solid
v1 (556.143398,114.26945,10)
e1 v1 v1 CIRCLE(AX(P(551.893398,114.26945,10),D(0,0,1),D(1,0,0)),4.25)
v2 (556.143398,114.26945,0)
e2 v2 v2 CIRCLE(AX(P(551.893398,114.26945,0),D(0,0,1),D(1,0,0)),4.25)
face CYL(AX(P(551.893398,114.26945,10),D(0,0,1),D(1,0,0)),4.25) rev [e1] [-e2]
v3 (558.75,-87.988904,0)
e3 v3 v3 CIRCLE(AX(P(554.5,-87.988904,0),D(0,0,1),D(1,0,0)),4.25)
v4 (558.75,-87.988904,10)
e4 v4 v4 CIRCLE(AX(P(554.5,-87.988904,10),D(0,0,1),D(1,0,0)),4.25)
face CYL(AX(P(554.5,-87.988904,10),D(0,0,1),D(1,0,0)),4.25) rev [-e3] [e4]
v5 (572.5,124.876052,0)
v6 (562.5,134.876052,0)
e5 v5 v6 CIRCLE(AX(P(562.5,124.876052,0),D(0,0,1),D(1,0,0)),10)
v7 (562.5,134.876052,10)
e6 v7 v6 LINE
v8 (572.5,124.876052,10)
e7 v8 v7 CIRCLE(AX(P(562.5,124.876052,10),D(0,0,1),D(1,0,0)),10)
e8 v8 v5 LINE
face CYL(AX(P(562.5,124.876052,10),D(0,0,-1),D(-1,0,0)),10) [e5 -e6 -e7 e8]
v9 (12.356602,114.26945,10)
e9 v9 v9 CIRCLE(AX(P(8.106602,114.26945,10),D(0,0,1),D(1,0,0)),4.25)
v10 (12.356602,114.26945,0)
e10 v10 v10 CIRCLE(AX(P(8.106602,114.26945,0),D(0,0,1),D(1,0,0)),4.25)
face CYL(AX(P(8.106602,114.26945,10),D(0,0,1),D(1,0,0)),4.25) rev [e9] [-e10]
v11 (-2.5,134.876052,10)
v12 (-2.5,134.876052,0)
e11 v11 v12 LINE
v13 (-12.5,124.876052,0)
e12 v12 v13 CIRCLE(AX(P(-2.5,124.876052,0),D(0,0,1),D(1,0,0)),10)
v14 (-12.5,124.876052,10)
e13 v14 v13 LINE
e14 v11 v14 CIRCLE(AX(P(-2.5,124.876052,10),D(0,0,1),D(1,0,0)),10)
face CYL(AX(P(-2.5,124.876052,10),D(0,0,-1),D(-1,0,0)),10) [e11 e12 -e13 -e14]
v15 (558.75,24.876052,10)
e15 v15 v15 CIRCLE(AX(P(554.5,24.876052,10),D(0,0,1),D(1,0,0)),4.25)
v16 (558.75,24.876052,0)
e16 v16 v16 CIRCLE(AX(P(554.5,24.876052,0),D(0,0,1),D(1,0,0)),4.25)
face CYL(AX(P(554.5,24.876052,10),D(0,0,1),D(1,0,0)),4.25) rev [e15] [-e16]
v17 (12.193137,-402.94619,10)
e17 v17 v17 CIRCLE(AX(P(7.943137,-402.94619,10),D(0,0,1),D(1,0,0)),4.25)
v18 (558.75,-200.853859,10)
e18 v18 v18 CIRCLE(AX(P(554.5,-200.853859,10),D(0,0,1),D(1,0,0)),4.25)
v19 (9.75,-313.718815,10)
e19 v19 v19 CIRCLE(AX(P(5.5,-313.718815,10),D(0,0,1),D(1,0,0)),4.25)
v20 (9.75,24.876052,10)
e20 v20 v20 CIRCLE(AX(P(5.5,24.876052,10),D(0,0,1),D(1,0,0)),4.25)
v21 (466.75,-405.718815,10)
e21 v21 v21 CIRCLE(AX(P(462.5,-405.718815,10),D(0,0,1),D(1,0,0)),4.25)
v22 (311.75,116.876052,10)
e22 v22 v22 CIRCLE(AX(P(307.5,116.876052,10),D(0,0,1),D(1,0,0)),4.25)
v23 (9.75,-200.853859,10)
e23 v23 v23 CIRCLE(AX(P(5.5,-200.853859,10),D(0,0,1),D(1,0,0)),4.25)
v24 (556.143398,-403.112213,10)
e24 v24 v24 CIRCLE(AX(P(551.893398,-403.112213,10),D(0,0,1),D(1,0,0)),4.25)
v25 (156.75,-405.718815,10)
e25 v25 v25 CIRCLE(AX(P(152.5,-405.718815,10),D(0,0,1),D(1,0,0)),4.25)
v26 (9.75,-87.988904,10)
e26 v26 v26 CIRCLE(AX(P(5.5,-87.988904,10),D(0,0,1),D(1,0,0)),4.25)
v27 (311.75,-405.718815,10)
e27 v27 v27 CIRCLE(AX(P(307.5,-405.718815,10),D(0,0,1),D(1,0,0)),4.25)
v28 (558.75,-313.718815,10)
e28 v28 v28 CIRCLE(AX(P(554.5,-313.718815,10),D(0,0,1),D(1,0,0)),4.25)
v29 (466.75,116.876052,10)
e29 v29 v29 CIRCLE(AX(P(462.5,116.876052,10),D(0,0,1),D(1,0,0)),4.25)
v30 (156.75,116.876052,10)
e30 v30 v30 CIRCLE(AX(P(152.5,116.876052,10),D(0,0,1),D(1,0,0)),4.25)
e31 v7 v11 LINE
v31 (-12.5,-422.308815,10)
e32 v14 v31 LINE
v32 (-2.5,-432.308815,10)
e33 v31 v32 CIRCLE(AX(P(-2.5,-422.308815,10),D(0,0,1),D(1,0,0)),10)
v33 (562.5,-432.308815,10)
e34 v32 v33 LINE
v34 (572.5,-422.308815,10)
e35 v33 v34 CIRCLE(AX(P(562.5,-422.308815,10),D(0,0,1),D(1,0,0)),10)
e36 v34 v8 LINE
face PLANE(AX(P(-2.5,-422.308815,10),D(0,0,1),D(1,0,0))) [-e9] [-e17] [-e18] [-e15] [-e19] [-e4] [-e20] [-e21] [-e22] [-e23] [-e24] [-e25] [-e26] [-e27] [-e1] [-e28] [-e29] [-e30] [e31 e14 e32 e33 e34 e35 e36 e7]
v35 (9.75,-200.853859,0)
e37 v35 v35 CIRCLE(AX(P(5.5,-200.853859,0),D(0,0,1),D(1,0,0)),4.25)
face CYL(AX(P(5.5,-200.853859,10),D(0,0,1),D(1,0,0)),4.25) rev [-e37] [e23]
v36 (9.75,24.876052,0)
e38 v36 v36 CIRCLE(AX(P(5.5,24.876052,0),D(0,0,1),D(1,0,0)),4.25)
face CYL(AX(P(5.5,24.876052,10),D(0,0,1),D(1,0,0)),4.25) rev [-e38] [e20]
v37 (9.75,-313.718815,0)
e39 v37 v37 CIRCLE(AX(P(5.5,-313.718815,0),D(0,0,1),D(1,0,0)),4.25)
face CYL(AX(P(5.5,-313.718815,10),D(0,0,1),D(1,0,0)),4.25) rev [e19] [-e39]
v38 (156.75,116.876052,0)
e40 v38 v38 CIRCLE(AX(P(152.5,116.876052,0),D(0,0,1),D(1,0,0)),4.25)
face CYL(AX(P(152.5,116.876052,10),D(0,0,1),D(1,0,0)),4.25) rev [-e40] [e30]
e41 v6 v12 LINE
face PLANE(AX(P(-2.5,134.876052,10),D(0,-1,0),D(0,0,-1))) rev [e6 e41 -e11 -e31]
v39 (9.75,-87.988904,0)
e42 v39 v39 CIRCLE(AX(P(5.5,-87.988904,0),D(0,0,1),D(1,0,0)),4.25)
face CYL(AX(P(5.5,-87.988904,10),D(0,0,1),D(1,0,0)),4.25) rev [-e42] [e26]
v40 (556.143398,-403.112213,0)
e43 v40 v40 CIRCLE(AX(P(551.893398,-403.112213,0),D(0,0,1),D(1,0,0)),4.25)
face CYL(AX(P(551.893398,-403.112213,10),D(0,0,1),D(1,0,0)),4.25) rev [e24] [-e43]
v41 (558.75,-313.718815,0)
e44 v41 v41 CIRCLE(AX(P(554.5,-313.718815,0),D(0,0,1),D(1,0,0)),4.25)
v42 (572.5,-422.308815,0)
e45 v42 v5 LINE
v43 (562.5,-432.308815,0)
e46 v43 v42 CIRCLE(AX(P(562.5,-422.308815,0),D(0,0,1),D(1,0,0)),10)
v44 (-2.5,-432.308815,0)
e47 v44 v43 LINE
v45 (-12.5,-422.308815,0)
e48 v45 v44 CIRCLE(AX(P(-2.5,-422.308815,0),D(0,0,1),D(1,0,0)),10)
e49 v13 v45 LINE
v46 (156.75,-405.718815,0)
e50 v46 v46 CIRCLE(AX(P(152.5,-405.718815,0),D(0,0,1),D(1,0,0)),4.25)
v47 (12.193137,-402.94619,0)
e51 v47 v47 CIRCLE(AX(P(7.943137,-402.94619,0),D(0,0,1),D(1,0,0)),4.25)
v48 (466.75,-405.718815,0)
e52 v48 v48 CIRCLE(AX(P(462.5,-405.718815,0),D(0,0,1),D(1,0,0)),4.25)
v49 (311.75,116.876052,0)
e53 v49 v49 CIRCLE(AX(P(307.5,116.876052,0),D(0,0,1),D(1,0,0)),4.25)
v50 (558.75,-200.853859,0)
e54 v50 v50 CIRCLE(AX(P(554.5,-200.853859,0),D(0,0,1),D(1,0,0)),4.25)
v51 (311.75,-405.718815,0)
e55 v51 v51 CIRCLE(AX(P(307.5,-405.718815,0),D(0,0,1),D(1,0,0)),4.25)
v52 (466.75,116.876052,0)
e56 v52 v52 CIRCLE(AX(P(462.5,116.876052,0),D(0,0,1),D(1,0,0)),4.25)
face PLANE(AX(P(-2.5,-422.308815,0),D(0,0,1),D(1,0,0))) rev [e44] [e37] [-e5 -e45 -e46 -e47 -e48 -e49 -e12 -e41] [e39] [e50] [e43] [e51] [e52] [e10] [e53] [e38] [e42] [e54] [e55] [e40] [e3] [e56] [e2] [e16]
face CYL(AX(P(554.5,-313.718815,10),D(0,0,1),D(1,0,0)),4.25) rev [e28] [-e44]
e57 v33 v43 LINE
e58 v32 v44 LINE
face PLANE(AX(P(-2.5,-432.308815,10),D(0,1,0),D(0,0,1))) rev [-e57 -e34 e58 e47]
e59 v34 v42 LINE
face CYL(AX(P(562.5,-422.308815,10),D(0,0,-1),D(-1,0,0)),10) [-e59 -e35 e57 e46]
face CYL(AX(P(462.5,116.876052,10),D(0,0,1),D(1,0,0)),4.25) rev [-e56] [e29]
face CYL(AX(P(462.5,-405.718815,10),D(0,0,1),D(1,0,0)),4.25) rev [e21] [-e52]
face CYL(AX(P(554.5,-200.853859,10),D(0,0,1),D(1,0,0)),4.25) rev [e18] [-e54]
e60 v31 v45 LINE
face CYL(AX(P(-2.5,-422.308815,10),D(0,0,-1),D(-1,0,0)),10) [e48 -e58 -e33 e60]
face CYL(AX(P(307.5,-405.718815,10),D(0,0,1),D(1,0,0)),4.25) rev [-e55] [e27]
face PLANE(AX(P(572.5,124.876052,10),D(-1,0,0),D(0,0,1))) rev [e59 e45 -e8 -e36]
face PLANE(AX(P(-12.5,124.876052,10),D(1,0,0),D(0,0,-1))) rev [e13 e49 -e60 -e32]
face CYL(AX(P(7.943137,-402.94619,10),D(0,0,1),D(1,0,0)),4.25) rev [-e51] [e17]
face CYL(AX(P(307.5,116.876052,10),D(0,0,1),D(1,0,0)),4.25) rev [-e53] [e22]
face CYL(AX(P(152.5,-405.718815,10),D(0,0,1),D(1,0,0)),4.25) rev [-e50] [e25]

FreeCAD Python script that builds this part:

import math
import FreeCAD as App
import Part
import Sketcher

V = App.Vector
Q = App.Units.Quantity

doc = App.newDocument("Part")
body = doc.addObject("PartDesign::Body", "Body")

# Sketch on XY plane
sketch1 = body.newObject("Sketcher::SketchObject", "Sketch")
sketch1.AttachmentSupport = (doc.getObject("XY_Plane"), [""])
sketch1.MapMode = "FlatFace"
sketch1.addGeometry([
    Part.LineSegment(V(-2, -432, 0), V(562, -432, 0)),  # 0
    Part.ArcOfCircle(Part.Circle(V(562, -422, 0), V(0, 0, 1), 10), math.radians(-90), math.radians(0)),  # 1
    Part.LineSegment(V(572, -422, 0), V(572, 125, 0)),  # 2
    Part.ArcOfCircle(Part.Circle(V(562, 125, 0), V(0, 0, 1), 10), math.radians(0), math.radians(90)),  # 3
    Part.LineSegment(V(562, 135, 0), V(-2, 135, 0)),  # 4
    Part.ArcOfCircle(Part.Circle(V(-2, 125, 0), V(0, 0, 1), 10), math.radians(90), math.radians(180)),  # 5
    Part.LineSegment(V(-12, 125, 0), V(-12, -422, 0)),  # 6
    Part.ArcOfCircle(Part.Circle(V(-2, -422, 0), V(0, 0, 1), 10), math.radians(180), math.radians(270)),  # 7
], False)
sketch1.addConstraint([
    Sketcher.Constraint("Tangent", 0, 2, 1, 1),
    Sketcher.Constraint("Tangent", 1, 2, 2, 1),
    Sketcher.Constraint("Tangent", 2, 2, 3, 1),
    Sketcher.Constraint("Tangent", 3, 2, 4, 1),
    Sketcher.Constraint("Tangent", 4, 2, 5, 1),
    Sketcher.Constraint("Tangent", 5, 2, 6, 1),
    Sketcher.Constraint("Tangent", 6, 2, 7, 1),
    Sketcher.Constraint("Tangent", 7, 2, 0, 1),
    Sketcher.Constraint("Horizontal", 0),
    Sketcher.Constraint("Vertical", 2),
    Sketcher.Constraint("Horizontal", 4),
    Sketcher.Constraint("Vertical", 6),
    Sketcher.Constraint("Equal", 1, 3),
    Sketcher.Constraint("Equal", 3, 5),
    Sketcher.Constraint("Equal", 5, 7),
    Sketcher.Constraint("Radius", 1, Q("10 mm")),
    Sketcher.Constraint("DistanceX", 0, 1, 0, 2, Q("565 mm")),
    Sketcher.Constraint("DistanceX", -1, 1, 1, 3, Q("562.5 mm")),
    Sketcher.Constraint("DistanceY", 2, 1, 2, 2, Q("547.184866 mm")),
    Sketcher.Constraint("DistanceY", -1, 1, 3, 3, Q("124.876052 mm")),
])
pad1 = body.newObject("PartDesign::Pad", "Pad")
pad1.Profile = sketch1
pad1.Length = 10

# Sketch on XY plane
sketch2 = body.newObject("Sketcher::SketchObject", "Sketch001")
sketch2.AttachmentSupport = (doc.getObject("XY_Plane"), [""])
sketch2.MapMode = "FlatFace"
sketch2.AttachmentOffset = App.Placement(V(0, 0, 10), App.Rotation())
sketch2.addGeometry([
    Part.Circle(V(8.1, 114.3, 0), V(0, 0, 1), 4.2),  # 0
    Part.Circle(V(152.5, 116.9, 0), V(0, 0, 1), 4.2),  # 1
    Part.Circle(V(307.5, 116.9, 0), V(0, 0, 1), 4.2),  # 2
    Part.Circle(V(462.5, 116.9, 0), V(0, 0, 1), 4.2),  # 3
    Part.Circle(V(551.9, 114.3, 0), V(0, 0, 1), 4.2),  # 4
    Part.Circle(V(554.5, 24.9, 0), V(0, 0, 1), 4.2),  # 5
    Part.Circle(V(554.5, -88, 0), V(0, 0, 1), 4.2),  # 6
    Part.Circle(V(554.5, -200.9, 0), V(0, 0, 1), 4.2),  # 7
    Part.Circle(V(554.5, -313.7, 0), V(0, 0, 1), 4.2),  # 8
    Part.Circle(V(551.9, -403.1, 0), V(0, 0, 1), 4.2),  # 9
    Part.Circle(V(462.5, -405.7, 0), V(0, 0, 1), 4.2),  # 10
    Part.Circle(V(307.5, -405.7, 0), V(0, 0, 1), 4.2),  # 11
    Part.Circle(V(152.5, -405.7, 0), V(0, 0, 1), 4.2),  # 12
    Part.Circle(V(7.9, -402.9, 0), V(0, 0, 1), 4.2),  # 13
    Part.Circle(V(5.5, -313.7, 0), V(0, 0, 1), 4.2),  # 14
    Part.Circle(V(5.5, -200.9, 0), V(0, 0, 1), 4.2),  # 15
    Part.Circle(V(5.5, -88, 0), V(0, 0, 1), 4.2),  # 16
    Part.Circle(V(5.5, 24.9, 0), V(0, 0, 1), 4.2),  # 17
], False)
sketch2.addConstraint([
    Sketcher.Constraint("Equal", 0, 1),
    Sketcher.Constraint("Equal", 1, 2),
    Sketcher.Constraint("Equal", 2, 3),
    Sketcher.Constraint("Equal", 3, 4),
    Sketcher.Constraint("Equal", 4, 5),
    Sketcher.Constraint("Equal", 5, 6),
    Sketcher.Constraint("Equal", 6, 7),
    Sketcher.Constraint("Equal", 7, 8),
    Sketcher.Constraint("Equal", 8, 9),
    Sketcher.Constraint("Equal", 9, 10),
    Sketcher.Constraint("Equal", 10, 11),
    Sketcher.Constraint("Equal", 11, 12),
    Sketcher.Constraint("Equal", 12, 13),
    Sketcher.Constraint("Equal", 13, 14),
    Sketcher.Constraint("Equal", 14, 15),
    Sketcher.Constraint("Equal", 15, 16),
    Sketcher.Constraint("Equal", 16, 17),
    Sketcher.Constraint("Horizontal", 1, 3, 2, 3),
    Sketcher.Constraint("Horizontal", 2, 3, 3, 3),
    Sketcher.Constraint("Horizontal", 0, 3, 4, 3),
    Sketcher.Constraint("Horizontal", 10, 3, 11, 3),
    Sketcher.Constraint("Horizontal", 11, 3, 12, 3),
    Sketcher.Constraint("Horizontal", 8, 3, 14, 3),
    Sketcher.Constraint("Horizontal", 7, 3, 15, 3),
    Sketcher.Constraint("Horizontal", 6, 3, 16, 3),
    Sketcher.Constraint("Horizontal", 5, 3, 17, 3),
    Sketcher.Constraint("Vertical", 5, 3, 6, 3),
    Sketcher.Constraint("Vertical", 6, 3, 7, 3),
    Sketcher.Constraint("Vertical", 7, 3, 8, 3),
    Sketcher.Constraint("Vertical", 4, 3, 9, 3),
    Sketcher.Constraint("Vertical", 3, 3, 10, 3),
    Sketcher.Constraint("Vertical", 2, 3, 11, 3),
    Sketcher.Constraint("Vertical", 1, 3, 12, 3),
    Sketcher.Constraint("Vertical", 14, 3, 15, 3),
    Sketcher.Constraint("Vertical", 15, 3, 16, 3),
    Sketcher.Constraint("Vertical", 16, 3, 17, 3),
    Sketcher.Constraint("Diameter", 0, Q("8.5 mm")),
    Sketcher.Constraint("DistanceX", 1, 3, 2, 3, Q("155 mm")),
    Sketcher.Constraint("DistanceX", 2, 3, 3, 3, Q("155 mm")),
    Sketcher.Constraint("DistanceX", 3, 3, 5, 3, Q("92 mm")),
    Sketcher.Constraint("DistanceY", 5, 3, 3, 3, Q("92 mm")),
    Sketcher.Constraint("DistanceY", 10, 3, 8, 3, Q("92 mm")),
    Sketcher.Constraint("DistanceX", 14, 3, 12, 3, Q("147 mm")),
    Sketcher.Constraint("DistanceX", -1, 1, 1, 3, Q("152.5 mm")),
    Sketcher.Constraint("DistanceX", -1, 1, 0, 3, Q("8.106602 mm")),
    Sketcher.Constraint("DistanceX", -1, 1, 4, 3, Q("551.893398 mm")),
    Sketcher.Constraint("DistanceY", 0, 3, 1, 3, Q("2.606602 mm")),
    Sketcher.Constraint("DistanceY", 9, 3, 8, 3, Q("89.393398 mm")),
    Sketcher.Constraint("DistanceY", -1, 1, 0, 3, Q("114.26945 mm")),
    Sketcher.Constraint("DistanceY", 7, 3, -1, 1, Q("200.853859 mm")),
    Sketcher.Constraint("DistanceY", 13, 3, -1, 1, Q("402.94619 mm")),
    Sketcher.Constraint("DistanceY", 8, 3, 6, 3, Q("225.729911 mm")),
    Sketcher.Constraint("DistanceY", 6, 3, -1, 1, Q("87.988904 mm")),
    Sketcher.Constraint("DistanceX", -1, 1, 13, 3, Q("7.943137 mm")),
])
doc.recompute()
hole = body.newObject("PartDesign::Hole", "Hole")
hole.Profile = sketch2
hole.ThreadType = "None"
hole.Diameter = 8.5
hole.DepthType = "ThroughAll"

doc.recompute()
